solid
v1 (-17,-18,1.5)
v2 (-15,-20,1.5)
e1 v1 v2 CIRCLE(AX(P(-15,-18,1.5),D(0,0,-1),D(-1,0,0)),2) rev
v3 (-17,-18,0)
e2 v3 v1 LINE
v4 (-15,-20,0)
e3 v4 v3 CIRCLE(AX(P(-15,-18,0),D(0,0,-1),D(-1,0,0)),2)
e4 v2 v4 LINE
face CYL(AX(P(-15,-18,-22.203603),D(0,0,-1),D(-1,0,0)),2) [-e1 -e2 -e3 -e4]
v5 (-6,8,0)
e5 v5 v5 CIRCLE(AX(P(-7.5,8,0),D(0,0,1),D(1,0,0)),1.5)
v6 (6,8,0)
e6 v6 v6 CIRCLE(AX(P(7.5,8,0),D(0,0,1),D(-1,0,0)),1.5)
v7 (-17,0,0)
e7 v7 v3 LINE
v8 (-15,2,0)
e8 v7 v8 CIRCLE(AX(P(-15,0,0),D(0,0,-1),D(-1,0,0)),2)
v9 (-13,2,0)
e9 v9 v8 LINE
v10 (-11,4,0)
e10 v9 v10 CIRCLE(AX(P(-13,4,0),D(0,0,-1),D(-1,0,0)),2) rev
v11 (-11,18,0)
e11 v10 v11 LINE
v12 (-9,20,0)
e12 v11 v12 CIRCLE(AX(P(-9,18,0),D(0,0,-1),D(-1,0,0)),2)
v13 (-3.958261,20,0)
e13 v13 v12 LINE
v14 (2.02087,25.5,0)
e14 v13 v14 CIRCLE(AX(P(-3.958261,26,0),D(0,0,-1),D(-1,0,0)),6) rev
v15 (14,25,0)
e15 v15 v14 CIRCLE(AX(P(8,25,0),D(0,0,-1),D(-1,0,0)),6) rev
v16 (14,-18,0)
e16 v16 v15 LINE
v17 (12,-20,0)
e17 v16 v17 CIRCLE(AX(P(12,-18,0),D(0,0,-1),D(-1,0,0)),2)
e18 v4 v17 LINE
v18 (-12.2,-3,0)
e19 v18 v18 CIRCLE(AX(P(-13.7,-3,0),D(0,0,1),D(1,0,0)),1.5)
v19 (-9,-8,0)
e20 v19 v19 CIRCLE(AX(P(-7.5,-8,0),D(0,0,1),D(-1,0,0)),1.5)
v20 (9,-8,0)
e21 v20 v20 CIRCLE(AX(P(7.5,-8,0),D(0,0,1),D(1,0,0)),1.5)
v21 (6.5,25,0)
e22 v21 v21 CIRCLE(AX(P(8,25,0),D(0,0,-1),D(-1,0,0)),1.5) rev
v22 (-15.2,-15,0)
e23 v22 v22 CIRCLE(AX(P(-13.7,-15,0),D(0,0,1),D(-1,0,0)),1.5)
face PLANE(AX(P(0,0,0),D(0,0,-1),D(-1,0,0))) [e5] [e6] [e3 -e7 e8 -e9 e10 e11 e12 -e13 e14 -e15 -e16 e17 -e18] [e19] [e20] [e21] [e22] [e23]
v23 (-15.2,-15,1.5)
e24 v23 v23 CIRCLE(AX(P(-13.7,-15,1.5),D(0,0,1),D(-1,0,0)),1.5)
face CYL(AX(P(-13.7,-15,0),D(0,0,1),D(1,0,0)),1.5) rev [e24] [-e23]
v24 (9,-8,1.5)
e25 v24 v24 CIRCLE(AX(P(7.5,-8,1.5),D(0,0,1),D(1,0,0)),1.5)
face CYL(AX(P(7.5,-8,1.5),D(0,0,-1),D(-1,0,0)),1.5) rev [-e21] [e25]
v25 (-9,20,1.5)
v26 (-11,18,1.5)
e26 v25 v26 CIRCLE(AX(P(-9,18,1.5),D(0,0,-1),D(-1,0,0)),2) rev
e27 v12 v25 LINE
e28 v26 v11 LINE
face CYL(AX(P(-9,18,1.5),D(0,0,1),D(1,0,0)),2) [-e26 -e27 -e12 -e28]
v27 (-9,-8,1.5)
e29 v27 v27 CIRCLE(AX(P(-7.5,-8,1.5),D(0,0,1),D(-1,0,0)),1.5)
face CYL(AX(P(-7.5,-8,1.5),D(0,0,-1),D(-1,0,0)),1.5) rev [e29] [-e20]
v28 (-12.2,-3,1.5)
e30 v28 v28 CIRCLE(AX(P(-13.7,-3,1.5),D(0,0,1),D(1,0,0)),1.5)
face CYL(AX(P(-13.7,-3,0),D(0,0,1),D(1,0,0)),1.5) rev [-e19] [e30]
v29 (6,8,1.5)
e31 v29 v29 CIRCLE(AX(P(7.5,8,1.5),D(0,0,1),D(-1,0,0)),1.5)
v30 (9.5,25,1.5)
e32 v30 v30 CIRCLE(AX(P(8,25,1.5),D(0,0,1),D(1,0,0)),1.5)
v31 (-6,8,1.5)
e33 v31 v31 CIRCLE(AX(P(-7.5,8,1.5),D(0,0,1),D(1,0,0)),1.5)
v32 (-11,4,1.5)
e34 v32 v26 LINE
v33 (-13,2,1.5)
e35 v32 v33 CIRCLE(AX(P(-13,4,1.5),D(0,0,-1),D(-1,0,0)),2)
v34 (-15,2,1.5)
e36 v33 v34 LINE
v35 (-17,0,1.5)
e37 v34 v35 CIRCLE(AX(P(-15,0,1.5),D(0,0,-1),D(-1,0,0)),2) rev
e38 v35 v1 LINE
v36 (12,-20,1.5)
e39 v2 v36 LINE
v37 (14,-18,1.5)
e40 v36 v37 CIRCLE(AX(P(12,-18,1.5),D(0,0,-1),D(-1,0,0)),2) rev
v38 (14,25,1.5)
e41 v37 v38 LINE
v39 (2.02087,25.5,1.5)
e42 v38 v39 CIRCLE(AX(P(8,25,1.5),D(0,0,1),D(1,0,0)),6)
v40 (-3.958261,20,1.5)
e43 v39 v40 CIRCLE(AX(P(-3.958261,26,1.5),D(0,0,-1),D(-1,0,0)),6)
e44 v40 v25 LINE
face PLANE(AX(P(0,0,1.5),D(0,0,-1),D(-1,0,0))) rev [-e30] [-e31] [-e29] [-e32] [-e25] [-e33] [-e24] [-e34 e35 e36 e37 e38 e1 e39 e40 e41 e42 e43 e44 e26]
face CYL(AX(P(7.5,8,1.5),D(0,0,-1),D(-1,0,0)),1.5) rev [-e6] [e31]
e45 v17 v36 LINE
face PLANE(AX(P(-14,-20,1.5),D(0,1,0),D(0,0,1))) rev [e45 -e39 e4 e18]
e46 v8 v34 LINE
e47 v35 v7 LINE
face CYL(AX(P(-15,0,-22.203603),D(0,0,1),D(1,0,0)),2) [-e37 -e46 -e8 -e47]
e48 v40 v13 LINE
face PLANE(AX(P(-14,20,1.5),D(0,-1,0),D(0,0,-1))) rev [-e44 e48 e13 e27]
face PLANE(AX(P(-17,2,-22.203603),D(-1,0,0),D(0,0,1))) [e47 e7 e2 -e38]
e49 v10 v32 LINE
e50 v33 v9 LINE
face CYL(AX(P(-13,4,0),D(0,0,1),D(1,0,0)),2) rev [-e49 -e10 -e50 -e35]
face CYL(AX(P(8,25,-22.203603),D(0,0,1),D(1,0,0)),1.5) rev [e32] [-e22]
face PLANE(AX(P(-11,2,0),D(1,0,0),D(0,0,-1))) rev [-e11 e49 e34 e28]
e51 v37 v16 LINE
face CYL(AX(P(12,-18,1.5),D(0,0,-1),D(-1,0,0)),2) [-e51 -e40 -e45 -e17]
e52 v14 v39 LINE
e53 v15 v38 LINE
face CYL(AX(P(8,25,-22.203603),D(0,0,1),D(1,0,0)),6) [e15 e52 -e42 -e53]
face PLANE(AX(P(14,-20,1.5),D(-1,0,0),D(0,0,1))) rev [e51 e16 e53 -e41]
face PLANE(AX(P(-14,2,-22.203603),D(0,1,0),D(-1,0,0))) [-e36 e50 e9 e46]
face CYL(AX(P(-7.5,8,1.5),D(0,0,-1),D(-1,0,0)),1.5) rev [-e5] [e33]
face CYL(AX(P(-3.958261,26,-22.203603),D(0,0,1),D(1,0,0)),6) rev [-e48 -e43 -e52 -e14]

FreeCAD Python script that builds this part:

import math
import FreeCAD as App
import Part
import Sketcher
from FreeCAD import Vector


def edges_at(feature, points):
    """Names of the edges that pass closest to the given points."""
    edges = feature.Shape.Edges
    near = lambda p: min(range(len(edges)), key=lambda i: edges[i].distToShape(Part.Vertex(*p))[0])
    return sorted({f"Edge{near(p) + 1}" for p in points})

doc = App.newDocument("Part")
body = doc.addObject("PartDesign::Body", "Body")

# Sketch on XY plane
sketch1 = doc.addObject("Sketcher::SketchObject", "Sketch")
body.addObject(sketch1)
sketch1.AttachmentSupport = (doc.XY_Plane, [""])
sketch1.MapMode = "FlatFace"
sketch1.addGeometry([
    Part.LineSegment(Vector(-14, 20, 0), Vector(-14, -20, 0)),  # 0
    Part.LineSegment(Vector(-14, -20, 0), Vector(14, -20, 0)),  # 1
    Part.LineSegment(Vector(14, -20, 0), Vector(14, 20, 0)),  # 2
    Part.LineSegment(Vector(14, 20, 0), Vector(-14, 20, 0)),  # 3
    Part.Circle(Vector(-7.5, -8, 0), Vector(0, 0, 1), 1.5),  # 4
    Part.Circle(Vector(7.5, -8, 0), Vector(0, 0, 1), 1.5),  # 5
    Part.Circle(Vector(-7.5, 8, 0), Vector(0, 0, 1), 1.5),  # 6
    Part.Circle(Vector(7.5, 8, 0), Vector(0, 0, 1), 1.5),  # 7
], False)
sketch1.addConstraint([
    Sketcher.Constraint("Coincident", 0, 2, 1, 1),
    Sketcher.Constraint("Coincident", 1, 2, 2, 1),
    Sketcher.Constraint("Coincident", 2, 2, 3, 1),
    Sketcher.Constraint("Coincident", 3, 2, 0, 1),
    Sketcher.Constraint("Vertical", 0),
    Sketcher.Constraint("Horizontal", 1),
    Sketcher.Constraint("Vertical", 2),
    Sketcher.Constraint("Horizontal", 3),
    Sketcher.Constraint("Equal", 4, 5),
    Sketcher.Constraint("Equal", 5, 6),
    Sketcher.Constraint("Equal", 6, 7),
    Sketcher.Constraint("Symmetric", 5, 3, 6, 3, -1, 1),
    Sketcher.Constraint("Symmetric", 4, 3, 7, 3, -1, 1),
    Sketcher.Constraint("Symmetric", 0, 2, 2, 2, -1, 1),
    Sketcher.Constraint("Symmetric", 4, 3, 5, 3, -2),
    Sketcher.Constraint("Diameter", 4, 3.0),
    Sketcher.Constraint("DistanceX", 1, 1, 1, 2, 28.0),
    Sketcher.Constraint("DistanceY", 0, 2, 0, 1, 40.0),
    Sketcher.Constraint("DistanceY", 4, 3, -1, 1, 8.0),
    Sketcher.Constraint("DistanceX", 4, 3, 5, 3, 15.0),
])
pad1 = doc.addObject("PartDesign::Pad", "Pad")
body.addObject(pad1)
pad1.Profile = sketch1
pad1.Length = 1.5

# Sketch on XY plane
sketch2 = doc.addObject("Sketcher::SketchObject", "Sketch001")
body.addObject(sketch2)
sketch2.AttachmentSupport = (doc.XY_Plane, [""])
sketch2.MapMode = "FlatFace"
sketch2.AttachmentOffset = App.Placement(Vector(0, 0, 1.5), App.Rotation())
sketch2.addGeometry([
    Part.LineSegment(Vector(2, 25, 0), Vector(2, 20, 0)),  # 0
    Part.ArcOfCircle(Part.Circle(Vector(8, 20, 0), Vector(0, 0, 1), 6), math.radians(180), math.radians(360)),  # 1
    Part.LineSegment(Vector(14, 20, 0), Vector(14, 25, 0)),  # 2
    Part.ArcOfCircle(Part.Circle(Vector(8, 25, 0), Vector(0, 0, 1), 6), math.radians(0), math.radians(180)),  # 3
    Part.Circle(Vector(8, 25, 0), Vector(0, 0, 1), 1.5),  # 4
    Part.LineSegment(Vector(-17, 2, 0), Vector(-17, -20, 0)),  # 5
    Part.LineSegment(Vector(-17, -20, 0), Vector(-14, -20, 0)),  # 6
    Part.LineSegment(Vector(-14, -20, 0), Vector(-14, 2, 0)),  # 7
    Part.LineSegment(Vector(-14, 2, 0), Vector(-17, 2, 0)),  # 8
], False)
sketch2.addConstraint([
    Sketcher.Constraint("Tangent", 0, 2, 1, 1),
    Sketcher.Constraint("Tangent", 1, 2, 2, 1),
    Sketcher.Constraint("Tangent", 2, 2, 3, 1),
    Sketcher.Constraint("Tangent", 3, 2, 0, 1),
    Sketcher.Constraint("Coincident", 5, 2, 6, 1),
    Sketcher.Constraint("Coincident", 6, 2, 7, 1),
    Sketcher.Constraint("Coincident", 7, 2, 8, 1),
    Sketcher.Constraint("Coincident", 8, 2, 5, 1),
    Sketcher.Constraint("Vertical", 0),
    Sketcher.Constraint("Vertical", 2),
    Sketcher.Constraint("Vertical", 5),
    Sketcher.Constraint("Horizontal", 6),
    Sketcher.Constraint("Vertical", 7),
    Sketcher.Constraint("Horizontal", 8),
    Sketcher.Constraint("Coincident", 4, 3, 3, 3),
    Sketcher.Constraint("Symmetric", 1, 2, 6, 2, -1, 1),
    Sketcher.Constraint("Diameter", 4, 3.0),
    Sketcher.Constraint("Radius", 1, 6.0),
    Sketcher.Constraint("DistanceX", 6, 1, 6, 2, 3.0),
    Sketcher.Constraint("DistanceY", 0, 2, 0, 1, 5.0),
    Sketcher.Constraint("DistanceY", 5, 2, 5, 1, 22.0),
    Sketcher.Constraint("DistanceX", -1, 1, 1, 3, 8.0),
    Sketcher.Constraint("DistanceY", -1, 1, 1, 3, 20.0),
])
pad2 = doc.addObject("PartDesign::Pad", "Pad001")
body.addObject(pad2)
pad2.Profile = sketch2
pad2.Length = 1.5
pad2.Reversed = True
doc.recompute()

fillet = doc.addObject("PartDesign::Fillet", "Fillet")
body.addObject(fillet)
fillet.Base = (pad2, edges_at(pad2, [(2, 20, 0.75)]))
fillet.Radius = 6

# Sketch on XY plane
sketch3 = doc.addObject("Sketcher::SketchObject", "Sketch002")
body.addObject(sketch3)
sketch3.AttachmentSupport = (doc.XY_Plane, [""])
sketch3.MapMode = "FlatFace"
sketch3.AttachmentOffset = App.Placement(Vector(0, 0, 1.5), App.Rotation())
sketch3.addGeometry([
    Part.Circle(Vector(-13.7, -3, 0), Vector(0, 0, 1), 1.5),  # 0
    Part.Circle(Vector(-13.7, -15, 0), Vector(0, 0, 1), 1.5),  # 1
    Part.LineSegment(Vector(-17, 20, 0), Vector(-17, 2, 0)),  # 2
    Part.LineSegment(Vector(-17, 2, 0), Vector(-11, 2, 0)),  # 3
    Part.LineSegment(Vector(-11, 2, 0), Vector(-11, 20, 0)),  # 4
    Part.LineSegment(Vector(-11, 20, 0), Vector(-17, 20, 0)),  # 5
], False)
sketch3.addConstraint([
    Sketcher.Constraint("Coincident", 2, 2, 3, 1),
    Sketcher.Constraint("Coincident", 3, 2, 4, 1),
    Sketcher.Constraint("Coincident", 4, 2, 5, 1),
    Sketcher.Constraint("Coincident", 5, 2, 2, 1),
    Sketcher.Constraint("Vertical", 2),
    Sketcher.Constraint("Horizontal", 3),
    Sketcher.Constraint("Vertical", 4),
    Sketcher.Constraint("Horizontal", 5),
    Sketcher.Constraint("Equal", 0, 1),
    Sketcher.Constraint("Vertical", 0, 3, 1, 3),
    Sketcher.Constraint("Diameter", 0, 3.0),
    Sketcher.Constraint("DistanceX", 3, 1, 3, 2, 6.0),
    Sketcher.Constraint("DistanceY", 2, 2, 2, 1, 18.0),
    Sketcher.Constraint("DistanceY", 0, 3, -1, 1, 3.0),
    Sketcher.Constraint("DistanceY", 1, 3, -1, 1, 15.0),
    Sketcher.Constraint("DistanceX", 2, 2, -1, 1, 17.0),
    Sketcher.Constraint("DistanceY", -1, 1, 2, 2, 2.0),
    Sketcher.Constraint("DistanceX", 0, 3, -1, 1, 13.7),
])
pocket1 = doc.addObject("PartDesign::Pocket", "Pocket")
body.addObject(pocket1)
pocket1.Profile = sketch3
pocket1.Type = "ThroughAll"
doc.recompute()

fillet2 = doc.addObject("PartDesign::Fillet", "Fillet001")
body.addObject(fillet2)
fillet2.Base = (pocket1, edges_at(pocket1, [
    (-17, 2, 0.75),
    (-17, -20, 0.75),
    (14, -20, 0.75),
    (-11, 2, 0.75),
    (-11, 20, 0.75),
]))
fillet2.Radius = 2

doc.recompute()
